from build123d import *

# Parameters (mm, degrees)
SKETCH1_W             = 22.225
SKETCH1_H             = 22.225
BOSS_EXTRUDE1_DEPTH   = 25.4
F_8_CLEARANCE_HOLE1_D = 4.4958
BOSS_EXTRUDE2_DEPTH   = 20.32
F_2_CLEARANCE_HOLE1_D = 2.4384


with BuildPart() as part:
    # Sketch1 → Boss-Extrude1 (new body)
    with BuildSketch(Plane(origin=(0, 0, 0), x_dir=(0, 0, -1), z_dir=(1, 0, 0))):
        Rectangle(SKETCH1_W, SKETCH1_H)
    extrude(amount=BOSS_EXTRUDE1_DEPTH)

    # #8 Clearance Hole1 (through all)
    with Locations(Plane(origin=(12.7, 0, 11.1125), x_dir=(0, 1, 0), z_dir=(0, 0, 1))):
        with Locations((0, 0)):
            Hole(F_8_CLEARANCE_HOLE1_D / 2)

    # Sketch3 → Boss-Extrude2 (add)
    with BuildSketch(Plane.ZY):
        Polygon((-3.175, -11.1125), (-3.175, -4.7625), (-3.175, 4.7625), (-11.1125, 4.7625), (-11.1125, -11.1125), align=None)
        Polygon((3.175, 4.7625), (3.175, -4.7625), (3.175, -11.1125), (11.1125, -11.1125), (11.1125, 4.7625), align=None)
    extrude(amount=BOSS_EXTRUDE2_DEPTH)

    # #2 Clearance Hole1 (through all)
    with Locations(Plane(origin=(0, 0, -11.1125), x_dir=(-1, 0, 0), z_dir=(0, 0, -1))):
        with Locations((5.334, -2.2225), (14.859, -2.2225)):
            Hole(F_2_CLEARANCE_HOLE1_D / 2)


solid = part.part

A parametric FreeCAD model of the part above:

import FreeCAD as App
import Part
import Sketcher
Q = App.Units.Quantity

doc = App.newDocument("Part")
body = doc.addObject("PartDesign::Body", "Body")

# Sketch on YZ plane
sketch1 = body.newObject("Sketcher::SketchObject", "Sketch")
sketch1.AttachmentSupport = (doc.getObject("YZ_Plane"), [""])
sketch1.MapMode = "FlatFace"
sketch1.addGeometry([
    Part.LineSegment(App.Vector(11.1125, 11.1125, 0), App.Vector(-11.1125, 11.1125, 0)),
    Part.LineSegment(App.Vector(-11.1125, 11.1125, 0), App.Vector(-11.1125, -11.1125, 0)),
    Part.LineSegment(App.Vector(-11.1125, -11.1125, 0), App.Vector(11.1125, -11.1125, 0)),
    Part.LineSegment(App.Vector(11.1125, -11.1125, 0), App.Vector(11.1125, 11.1125, 0)),
], False)
sketch1.addConstraint([
    Sketcher.Constraint("Coincident", 0, 2, 1, 1),
    Sketcher.Constraint("Coincident", 1, 2, 2, 1),
    Sketcher.Constraint("Coincident", 2, 2, 3, 1),
    Sketcher.Constraint("Coincident", 3, 2, 0, 1),
    Sketcher.Constraint("Horizontal", 0),
    Sketcher.Constraint("Vertical", 1),
    Sketcher.Constraint("Horizontal", 2),
    Sketcher.Constraint("Vertical", 3),
    Sketcher.Constraint("Symmetric", 0, 2, 2, 2, -1, 1),
    Sketcher.Constraint("Equal", 2, 1),
    Sketcher.Constraint("DistanceX", 0, 2, 0, 1, Q("0.875 in")),
])
pad1 = body.newObject("PartDesign::Pad", "Pad")
pad1.Profile = sketch1
pad1.Length = Q("1 in")

# Sketch on XY plane
sketch2 = body.newObject("Sketcher::SketchObject", "Sketch001")
sketch2.AttachmentSupport = (doc.getObject("XY_Plane"), [""])
sketch2.MapMode = "FlatFace"
sketch2.AttachmentOffset = App.Placement(App.Vector(0, 0, 0.4375 * 25.4), App.Rotation())
sketch2.addGeometry(Part.Circle(App.Vector(12.7, 0, 0), App.Vector(0, 0, 1), 2.2479), False)
sketch2.addConstraint([
    Sketcher.Constraint("PointOnObject", 0, 3, -1),
    Sketcher.Constraint("Diameter", 0, Q("0.177 in")),
    Sketcher.Constraint("DistanceX", -1, 1, 0, 3, Q("0.5 in")),
])
doc.recompute()
hole = body.newObject("PartDesign::Hole", "Hole")
hole.Profile = sketch2
hole.ThreadType = "None"
hole.Diameter = Q("0.177 in")
hole.DepthType = "ThroughAll"

# Sketch on YZ plane
sketch3 = body.newObject("Sketcher::SketchObject", "Sketch002")
sketch3.AttachmentSupport = (doc.getObject("YZ_Plane"), [""])
sketch3.MapMode = "FlatFace"
sketch3.addGeometry([
    Part.LineSegment(App.Vector(-11.1125, -3.175, 0), App.Vector(4.7625, -3.175, 0)),  # 0
    Part.LineSegment(App.Vector(4.7625, -3.175, 0), App.Vector(4.7625, -11.1125, 0)),  # 1
    Part.LineSegment(App.Vector(4.7625, -11.1125, 0), App.Vector(-11.1125, -11.1125, 0)),  # 2
    Part.LineSegment(App.Vector(-11.1125, -11.1125, 0), App.Vector(-11.1125, -3.175, 0)),  # 3
    Part.LineSegment(App.Vector(4.7625, 3.175, 0), App.Vector(-11.1125, 3.175, 0)),  # 4
    Part.LineSegment(App.Vector(-11.1125, 3.175, 0), App.Vector(-11.1125, 11.1125, 0)),  # 5
    Part.LineSegment(App.Vector(-11.1125, 11.1125, 0), App.Vector(4.7625, 11.1125, 0)),  # 6
    Part.LineSegment(App.Vector(4.7625, 11.1125, 0), App.Vector(4.7625, 3.175, 0)),  # 7
], False)
sketch3.addConstraint([
    Sketcher.Constraint("Coincident", 0, 2, 1, 1),
    Sketcher.Constraint("Coincident", 1, 2, 2, 1),
    Sketcher.Constraint("Coincident", 2, 2, 3, 1),
    Sketcher.Constraint("Coincident", 3, 2, 0, 1),
    Sketcher.Constraint("Coincident", 4, 2, 5, 1),
    Sketcher.Constraint("Coincident", 5, 2, 6, 1),
    Sketcher.Constraint("Coincident", 6, 2, 7, 1),
    Sketcher.Constraint("Coincident", 7, 2, 4, 1),
    Sketcher.Constraint("Horizontal", 0),
    Sketcher.Constraint("Vertical", 1),
    Sketcher.Constraint("Horizontal", 2),
    Sketcher.Constraint("Vertical", 3),
    Sketcher.Constraint("Horizontal", 4),
    Sketcher.Constraint("Vertical", 5),
    Sketcher.Constraint("Horizontal", 6),
    Sketcher.Constraint("Vertical", 7),
    Sketcher.Constraint("Symmetric", 3, 2, 4, 2, -1),
    Sketcher.Constraint("Symmetric", 1, 2, 6, 2, -1),
    Sketcher.Constraint("DistanceX", 0, 1, 0, 2, Q("0.625 in")),
    Sketcher.Constraint("DistanceY", 1, 2, 1, 1, Q("0.3125 in")),
    Sketcher.Constraint("DistanceY", 3, 2, 4, 2, Q("0.25 in")),
    Sketcher.Constraint("DistanceX", -1, 1, 0, 2, Q("0.1875 in")),
])
pad2 = body.newObject("PartDesign::Pad", "Pad001")
pad2.Profile = sketch3
pad2.Length = Q("0.8 in")
pad2.Reversed = True

# Sketch on XY plane
sketch4 = body.newObject("Sketcher::SketchObject", "Sketch003")
sketch4.AttachmentSupport = (doc.getObject("XY_Plane"), [""])
sketch4.MapMode = "FlatFace"
sketch4.AttachmentOffset = App.Placement(App.Vector(0, 0, -0.4375 * 25.4), App.Rotation())
sketch4.addGeometry([
    Part.Circle(App.Vector(-5.334, -2.2225, 0), App.Vector(0, 0, 1), 1.2192),
    Part.Circle(App.Vector(-14.859, -2.2225, 0), App.Vector(0, 0, 1), 1.2192),
], False)
sketch4.addConstraint([
    Sketcher.Constraint("Equal", 0, 1),
    Sketcher.Constraint("Horizontal", 0, 3, 1, 3),
    Sketcher.Constraint("Diameter", 0, Q("0.096 in")),
    Sketcher.Constraint("DistanceX", 0, 3, -1, 1, Q("0.21 in")),
    Sketcher.Constraint("DistanceX", 1, 3, -1, 1, Q("0.585 in")),
    Sketcher.Constraint("DistanceY", 0, 3, -1, 1, Q("0.0875 in")),
])
doc.recompute()
hole2 = body.newObject("PartDesign::Hole", "Hole001")
hole2.Profile = sketch4
hole2.ThreadType = "None"
hole2.Diameter = Q("0.096 in")
hole2.DepthType = "ThroughAll"
hole2.Reversed = True

doc.recompute()
